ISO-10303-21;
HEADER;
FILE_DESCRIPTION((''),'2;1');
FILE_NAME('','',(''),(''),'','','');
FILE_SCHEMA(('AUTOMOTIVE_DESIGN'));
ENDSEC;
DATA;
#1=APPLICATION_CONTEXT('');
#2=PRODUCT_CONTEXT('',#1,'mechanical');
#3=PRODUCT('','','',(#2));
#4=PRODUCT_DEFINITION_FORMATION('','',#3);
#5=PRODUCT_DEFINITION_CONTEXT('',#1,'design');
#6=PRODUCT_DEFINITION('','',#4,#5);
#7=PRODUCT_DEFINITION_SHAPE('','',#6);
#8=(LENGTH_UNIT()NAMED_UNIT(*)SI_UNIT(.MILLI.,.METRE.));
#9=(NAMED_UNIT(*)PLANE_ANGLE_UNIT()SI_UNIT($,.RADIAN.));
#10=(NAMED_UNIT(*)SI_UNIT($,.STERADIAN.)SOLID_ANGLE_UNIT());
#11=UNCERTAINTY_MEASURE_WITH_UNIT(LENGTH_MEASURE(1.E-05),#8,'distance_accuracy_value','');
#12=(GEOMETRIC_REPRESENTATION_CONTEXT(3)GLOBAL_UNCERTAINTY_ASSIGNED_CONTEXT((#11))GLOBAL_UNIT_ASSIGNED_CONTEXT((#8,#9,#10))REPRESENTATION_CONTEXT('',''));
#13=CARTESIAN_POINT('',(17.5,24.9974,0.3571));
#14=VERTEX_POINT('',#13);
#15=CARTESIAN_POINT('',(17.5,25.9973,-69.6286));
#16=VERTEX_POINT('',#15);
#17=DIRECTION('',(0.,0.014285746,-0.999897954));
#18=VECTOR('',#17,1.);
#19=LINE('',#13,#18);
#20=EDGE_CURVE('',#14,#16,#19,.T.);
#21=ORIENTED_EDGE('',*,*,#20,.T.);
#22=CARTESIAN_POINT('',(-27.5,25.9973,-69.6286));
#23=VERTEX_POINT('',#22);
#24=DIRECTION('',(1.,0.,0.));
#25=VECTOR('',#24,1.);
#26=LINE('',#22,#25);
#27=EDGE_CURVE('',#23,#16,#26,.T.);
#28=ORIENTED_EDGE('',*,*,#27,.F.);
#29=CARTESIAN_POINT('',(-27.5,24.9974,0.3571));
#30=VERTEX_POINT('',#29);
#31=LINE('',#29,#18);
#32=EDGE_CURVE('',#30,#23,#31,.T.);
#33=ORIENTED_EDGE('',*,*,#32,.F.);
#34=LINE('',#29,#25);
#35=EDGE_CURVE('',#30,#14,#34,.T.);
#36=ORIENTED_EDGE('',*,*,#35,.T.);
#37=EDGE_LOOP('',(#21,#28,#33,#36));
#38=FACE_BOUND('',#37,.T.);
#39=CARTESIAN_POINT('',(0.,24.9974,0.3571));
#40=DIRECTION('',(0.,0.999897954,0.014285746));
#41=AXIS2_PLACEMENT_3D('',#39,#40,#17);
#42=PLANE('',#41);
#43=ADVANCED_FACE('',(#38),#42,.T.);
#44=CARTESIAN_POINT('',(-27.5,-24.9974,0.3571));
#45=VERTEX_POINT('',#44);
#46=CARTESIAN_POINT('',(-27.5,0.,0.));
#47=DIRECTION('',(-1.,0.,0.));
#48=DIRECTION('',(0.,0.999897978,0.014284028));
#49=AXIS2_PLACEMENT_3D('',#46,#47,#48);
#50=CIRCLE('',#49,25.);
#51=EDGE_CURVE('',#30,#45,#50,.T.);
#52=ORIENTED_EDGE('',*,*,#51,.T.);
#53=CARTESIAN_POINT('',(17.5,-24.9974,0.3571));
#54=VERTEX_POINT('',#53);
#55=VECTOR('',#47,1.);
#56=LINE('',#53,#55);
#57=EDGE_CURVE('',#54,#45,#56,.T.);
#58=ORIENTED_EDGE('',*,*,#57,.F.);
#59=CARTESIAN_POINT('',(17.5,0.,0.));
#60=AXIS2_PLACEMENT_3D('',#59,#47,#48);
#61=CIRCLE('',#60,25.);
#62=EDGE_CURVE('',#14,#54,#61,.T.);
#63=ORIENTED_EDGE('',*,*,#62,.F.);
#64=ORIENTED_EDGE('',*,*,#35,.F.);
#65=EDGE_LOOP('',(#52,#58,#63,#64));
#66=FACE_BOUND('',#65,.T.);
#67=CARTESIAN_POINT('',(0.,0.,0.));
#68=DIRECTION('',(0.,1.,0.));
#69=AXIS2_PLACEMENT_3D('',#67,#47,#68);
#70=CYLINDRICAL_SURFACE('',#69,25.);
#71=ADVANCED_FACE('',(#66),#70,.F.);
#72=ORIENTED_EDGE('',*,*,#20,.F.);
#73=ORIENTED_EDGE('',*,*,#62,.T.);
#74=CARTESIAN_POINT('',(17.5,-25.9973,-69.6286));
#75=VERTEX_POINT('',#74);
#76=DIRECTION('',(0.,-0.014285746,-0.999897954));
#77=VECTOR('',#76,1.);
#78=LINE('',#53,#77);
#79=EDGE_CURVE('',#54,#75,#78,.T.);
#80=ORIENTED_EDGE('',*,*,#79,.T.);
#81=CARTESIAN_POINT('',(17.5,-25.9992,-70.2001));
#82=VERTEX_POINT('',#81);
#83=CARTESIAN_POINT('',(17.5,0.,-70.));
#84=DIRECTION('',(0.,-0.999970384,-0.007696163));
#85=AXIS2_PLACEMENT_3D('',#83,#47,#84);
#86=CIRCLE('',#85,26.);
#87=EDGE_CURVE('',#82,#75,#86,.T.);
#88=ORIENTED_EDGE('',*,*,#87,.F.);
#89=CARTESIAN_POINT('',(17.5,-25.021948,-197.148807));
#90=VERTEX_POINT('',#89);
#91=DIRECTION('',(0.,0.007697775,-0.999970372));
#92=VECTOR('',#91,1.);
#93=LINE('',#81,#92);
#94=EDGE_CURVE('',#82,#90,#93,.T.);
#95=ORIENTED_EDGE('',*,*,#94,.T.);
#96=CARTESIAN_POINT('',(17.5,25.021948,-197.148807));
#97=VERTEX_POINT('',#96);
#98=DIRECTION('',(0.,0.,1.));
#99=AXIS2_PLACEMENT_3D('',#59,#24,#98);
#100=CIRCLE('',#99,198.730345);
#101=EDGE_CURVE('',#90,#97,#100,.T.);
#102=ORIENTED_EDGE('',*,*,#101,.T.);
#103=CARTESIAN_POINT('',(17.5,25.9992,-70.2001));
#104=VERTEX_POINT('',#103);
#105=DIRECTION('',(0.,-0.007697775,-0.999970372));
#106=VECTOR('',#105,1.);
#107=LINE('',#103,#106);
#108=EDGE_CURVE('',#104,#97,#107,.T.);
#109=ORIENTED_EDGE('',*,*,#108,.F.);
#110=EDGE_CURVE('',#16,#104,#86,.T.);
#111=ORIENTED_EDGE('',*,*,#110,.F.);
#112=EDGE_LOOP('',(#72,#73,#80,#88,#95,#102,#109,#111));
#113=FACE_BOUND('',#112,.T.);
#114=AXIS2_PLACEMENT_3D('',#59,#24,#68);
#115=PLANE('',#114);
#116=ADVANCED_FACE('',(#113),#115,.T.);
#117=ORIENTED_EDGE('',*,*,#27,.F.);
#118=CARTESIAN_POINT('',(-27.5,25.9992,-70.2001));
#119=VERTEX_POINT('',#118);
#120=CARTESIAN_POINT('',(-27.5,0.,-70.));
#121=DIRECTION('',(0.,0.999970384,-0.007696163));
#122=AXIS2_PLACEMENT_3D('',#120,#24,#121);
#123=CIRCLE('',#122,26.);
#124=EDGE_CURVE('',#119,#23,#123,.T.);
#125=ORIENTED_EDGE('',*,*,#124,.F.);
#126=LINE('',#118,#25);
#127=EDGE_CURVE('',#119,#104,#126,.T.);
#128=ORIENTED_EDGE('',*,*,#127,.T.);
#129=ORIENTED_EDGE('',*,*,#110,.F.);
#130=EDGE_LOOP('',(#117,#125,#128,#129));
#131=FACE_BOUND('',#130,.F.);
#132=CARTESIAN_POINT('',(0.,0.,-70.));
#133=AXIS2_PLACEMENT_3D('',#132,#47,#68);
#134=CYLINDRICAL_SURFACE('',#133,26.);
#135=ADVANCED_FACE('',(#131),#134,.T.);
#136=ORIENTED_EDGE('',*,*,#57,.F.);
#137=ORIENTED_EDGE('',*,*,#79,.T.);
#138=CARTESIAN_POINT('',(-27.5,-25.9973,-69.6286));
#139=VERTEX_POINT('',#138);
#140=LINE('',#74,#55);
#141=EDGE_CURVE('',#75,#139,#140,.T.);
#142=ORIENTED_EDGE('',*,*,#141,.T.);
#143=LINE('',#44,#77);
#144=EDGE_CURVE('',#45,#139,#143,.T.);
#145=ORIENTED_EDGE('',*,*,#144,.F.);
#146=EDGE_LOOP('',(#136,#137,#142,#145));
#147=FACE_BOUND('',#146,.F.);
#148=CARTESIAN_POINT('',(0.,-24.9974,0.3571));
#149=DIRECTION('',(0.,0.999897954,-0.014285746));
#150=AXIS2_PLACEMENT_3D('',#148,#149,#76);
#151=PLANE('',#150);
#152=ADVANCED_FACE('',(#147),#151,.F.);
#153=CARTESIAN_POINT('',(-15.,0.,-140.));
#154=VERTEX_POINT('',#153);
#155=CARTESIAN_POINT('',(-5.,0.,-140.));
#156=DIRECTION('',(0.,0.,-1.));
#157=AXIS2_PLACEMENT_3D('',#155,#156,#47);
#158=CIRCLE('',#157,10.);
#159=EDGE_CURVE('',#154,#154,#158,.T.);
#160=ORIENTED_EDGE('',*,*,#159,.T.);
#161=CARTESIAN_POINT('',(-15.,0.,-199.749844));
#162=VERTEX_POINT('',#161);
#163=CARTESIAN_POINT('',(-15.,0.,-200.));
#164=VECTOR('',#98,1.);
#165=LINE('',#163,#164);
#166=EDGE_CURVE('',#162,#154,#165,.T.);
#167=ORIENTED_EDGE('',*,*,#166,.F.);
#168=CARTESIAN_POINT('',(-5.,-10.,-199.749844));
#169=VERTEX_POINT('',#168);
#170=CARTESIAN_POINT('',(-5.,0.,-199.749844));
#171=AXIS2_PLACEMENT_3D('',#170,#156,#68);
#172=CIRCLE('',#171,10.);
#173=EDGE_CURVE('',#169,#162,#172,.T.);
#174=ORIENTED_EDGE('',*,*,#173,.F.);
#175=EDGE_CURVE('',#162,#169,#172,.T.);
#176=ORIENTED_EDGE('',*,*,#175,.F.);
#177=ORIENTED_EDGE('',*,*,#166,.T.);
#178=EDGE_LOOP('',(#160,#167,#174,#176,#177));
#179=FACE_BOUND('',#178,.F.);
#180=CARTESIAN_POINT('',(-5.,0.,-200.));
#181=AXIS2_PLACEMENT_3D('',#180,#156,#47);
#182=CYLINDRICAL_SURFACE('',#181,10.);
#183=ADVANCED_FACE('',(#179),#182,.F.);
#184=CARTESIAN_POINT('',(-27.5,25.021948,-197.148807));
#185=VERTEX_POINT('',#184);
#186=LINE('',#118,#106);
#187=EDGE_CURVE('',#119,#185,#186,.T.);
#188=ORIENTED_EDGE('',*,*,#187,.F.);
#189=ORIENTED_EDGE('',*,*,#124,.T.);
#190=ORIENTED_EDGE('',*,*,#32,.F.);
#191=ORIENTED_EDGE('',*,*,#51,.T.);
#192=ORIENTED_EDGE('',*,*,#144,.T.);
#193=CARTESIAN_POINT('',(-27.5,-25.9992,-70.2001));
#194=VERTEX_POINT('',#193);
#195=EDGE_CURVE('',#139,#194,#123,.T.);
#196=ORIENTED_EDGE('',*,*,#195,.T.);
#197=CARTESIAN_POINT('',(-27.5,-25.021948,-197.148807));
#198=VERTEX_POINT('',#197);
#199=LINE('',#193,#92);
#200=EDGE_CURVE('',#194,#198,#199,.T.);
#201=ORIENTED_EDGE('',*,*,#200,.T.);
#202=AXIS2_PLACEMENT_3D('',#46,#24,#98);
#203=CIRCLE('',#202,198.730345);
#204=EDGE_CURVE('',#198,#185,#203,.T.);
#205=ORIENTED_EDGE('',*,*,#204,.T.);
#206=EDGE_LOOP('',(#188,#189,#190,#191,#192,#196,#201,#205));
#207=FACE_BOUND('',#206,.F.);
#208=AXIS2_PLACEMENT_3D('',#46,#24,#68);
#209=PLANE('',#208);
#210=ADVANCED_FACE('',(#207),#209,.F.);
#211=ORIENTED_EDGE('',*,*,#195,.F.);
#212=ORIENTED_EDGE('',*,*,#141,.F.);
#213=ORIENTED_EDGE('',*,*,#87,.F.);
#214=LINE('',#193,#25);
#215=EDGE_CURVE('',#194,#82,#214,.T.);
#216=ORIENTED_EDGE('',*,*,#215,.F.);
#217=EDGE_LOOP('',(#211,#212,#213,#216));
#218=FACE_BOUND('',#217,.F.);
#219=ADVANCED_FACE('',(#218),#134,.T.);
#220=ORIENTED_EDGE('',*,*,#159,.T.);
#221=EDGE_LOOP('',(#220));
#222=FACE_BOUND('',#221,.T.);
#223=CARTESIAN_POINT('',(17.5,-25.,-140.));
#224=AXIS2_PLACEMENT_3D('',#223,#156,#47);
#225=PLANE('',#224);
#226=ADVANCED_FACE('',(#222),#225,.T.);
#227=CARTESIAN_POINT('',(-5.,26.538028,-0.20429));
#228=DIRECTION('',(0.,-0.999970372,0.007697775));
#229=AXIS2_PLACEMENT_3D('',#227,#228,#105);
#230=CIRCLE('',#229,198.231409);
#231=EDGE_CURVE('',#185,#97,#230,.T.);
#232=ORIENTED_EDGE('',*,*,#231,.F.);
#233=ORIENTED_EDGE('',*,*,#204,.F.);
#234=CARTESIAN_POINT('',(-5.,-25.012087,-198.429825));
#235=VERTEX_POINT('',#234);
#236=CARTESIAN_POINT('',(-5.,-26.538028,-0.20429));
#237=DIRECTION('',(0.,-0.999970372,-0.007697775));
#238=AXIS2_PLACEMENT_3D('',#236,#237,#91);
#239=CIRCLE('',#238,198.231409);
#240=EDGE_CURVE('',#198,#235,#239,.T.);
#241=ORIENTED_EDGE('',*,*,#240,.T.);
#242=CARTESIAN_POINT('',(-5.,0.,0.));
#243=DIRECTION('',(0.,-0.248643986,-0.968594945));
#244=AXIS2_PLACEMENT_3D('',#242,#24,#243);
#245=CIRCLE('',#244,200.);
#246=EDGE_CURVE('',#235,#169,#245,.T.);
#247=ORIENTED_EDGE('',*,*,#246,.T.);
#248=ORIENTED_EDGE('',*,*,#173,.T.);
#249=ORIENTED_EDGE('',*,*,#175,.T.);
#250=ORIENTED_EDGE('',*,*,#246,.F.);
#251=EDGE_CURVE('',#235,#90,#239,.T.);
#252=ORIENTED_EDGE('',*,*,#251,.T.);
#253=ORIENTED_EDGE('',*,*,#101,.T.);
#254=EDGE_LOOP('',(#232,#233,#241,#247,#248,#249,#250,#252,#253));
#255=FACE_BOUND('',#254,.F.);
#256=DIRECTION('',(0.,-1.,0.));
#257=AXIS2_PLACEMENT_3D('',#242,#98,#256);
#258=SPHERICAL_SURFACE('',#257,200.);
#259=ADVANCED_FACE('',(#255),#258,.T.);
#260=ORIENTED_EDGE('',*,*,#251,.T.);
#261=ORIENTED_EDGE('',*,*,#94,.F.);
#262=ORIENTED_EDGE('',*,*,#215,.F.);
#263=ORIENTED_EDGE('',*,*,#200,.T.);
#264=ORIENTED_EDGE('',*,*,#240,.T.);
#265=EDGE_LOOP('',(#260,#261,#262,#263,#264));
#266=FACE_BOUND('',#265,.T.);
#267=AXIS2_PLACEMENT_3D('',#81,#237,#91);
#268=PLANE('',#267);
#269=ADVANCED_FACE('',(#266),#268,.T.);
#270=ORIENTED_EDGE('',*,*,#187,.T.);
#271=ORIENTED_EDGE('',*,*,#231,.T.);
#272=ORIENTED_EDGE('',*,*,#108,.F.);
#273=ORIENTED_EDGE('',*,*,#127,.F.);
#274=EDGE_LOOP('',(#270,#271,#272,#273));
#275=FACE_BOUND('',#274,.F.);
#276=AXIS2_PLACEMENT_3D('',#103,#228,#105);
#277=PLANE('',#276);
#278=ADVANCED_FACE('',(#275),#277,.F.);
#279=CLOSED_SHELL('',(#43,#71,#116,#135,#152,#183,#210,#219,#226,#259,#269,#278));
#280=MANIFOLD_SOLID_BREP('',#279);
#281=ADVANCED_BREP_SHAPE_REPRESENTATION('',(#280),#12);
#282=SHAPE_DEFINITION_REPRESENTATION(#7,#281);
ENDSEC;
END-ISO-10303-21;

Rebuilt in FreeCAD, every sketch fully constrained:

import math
import FreeCAD as App
import Part
import Sketcher

V = App.Vector

doc = App.newDocument("Part")
body = doc.addObject("PartDesign::Body", "Body")

# Sketch on YZ plane
sketch1 = body.newObject("Sketcher::SketchObject", "Sketch")
sketch1.AttachmentSupport = (doc.getObject("YZ_Plane"), [""])
sketch1.MapMode = "FlatFace"
sketch1.addGeometry(Part.Circle(V(0, -70, 0), V(0, 0, 1), 26), False)
sketch1.addConstraint([
    Sketcher.Constraint("PointOnObject", 0, 3, -2),
    Sketcher.Constraint("Diameter", 0, 52.0),
    Sketcher.Constraint("DistanceY", 0, 3, -1, 1, 70.0),
])
pad1 = body.newObject("PartDesign::Pad", "Pad")
pad1.Profile = sketch1
pad1.Type = "TwoLengths"
pad1.Length = 17.5
pad1.Length2 = 27.5

# Sketch on YZ plane
sketch2 = body.newObject("Sketcher::SketchObject", "Sketch001")
sketch2.AttachmentSupport = (doc.getObject("YZ_Plane"), [""])
sketch2.MapMode = "FlatFace"
sketch2.AttachmentOffset = App.Placement(V(0, 0, 17.5), App.Rotation())
sketch2.addGeometry([
    Part.LineSegment(V(25, -200, 0), V(26, -70, 0)),
    Part.ArcOfCircle(Part.Circle(V(0, -70, 0), V(0, 0, 1), 26), math.radians(-180), math.radians(0)),
    Part.LineSegment(V(-26, -70, 0), V(-25, -200, 0)),
    Part.LineSegment(V(-25, -200, 0), V(25, -200, 0)),
], False)
sketch2.addConstraint([
    Sketcher.Constraint("Tangent", 0, 2, 1, 2),
    Sketcher.Constraint("Tangent", 1, 1, 2, 1),
    Sketcher.Constraint("Coincident", 2, 2, 3, 1),
    Sketcher.Constraint("Coincident", 3, 2, 0, 1),
    Sketcher.Constraint("Horizontal", 3),
    Sketcher.Constraint("Symmetric", 0, 2, 1, 1, -2),
    Sketcher.Constraint("Radius", 1, 26.0),
    Sketcher.Constraint("DistanceX", 3, 1, 3, 2, 50.0),
    Sketcher.Constraint("DistanceY", 1, 3, -1, 1, 70.0),
    Sketcher.Constraint("DistanceY", 2, 2, 1, 3, 130.0),
])
pad2 = body.newObject("PartDesign::Pad", "Pad001")
pad2.Profile = sketch2
pad2.Length = 45
pad2.Reversed = True

# Sketch on XY plane
sketch3 = body.newObject("Sketcher::SketchObject", "Sketch002")
sketch3.AttachmentSupport = (doc.getObject("XY_Plane"), [""])
sketch3.MapMode = "FlatFace"
sketch3.AttachmentOffset = App.Placement(V(0, 0, -200), App.Rotation())
sketch3.addGeometry(Part.Circle(V(-5, 0, 0), V(0, 0, 1), 10), False)
sketch3.addConstraint([
    Sketcher.Constraint("PointOnObject", 0, 3, -1),
    Sketcher.Constraint("Diameter", 0, 20.0),
    Sketcher.Constraint("DistanceX", 0, 3, -1, 1, 5.0),
])
pocket1 = body.newObject("PartDesign::Pocket", "Pocket")
pocket1.Profile = sketch3
pocket1.Length = 60
pocket1.Reversed = True

# Sketch on YZ plane
sketch4 = body.newObject("Sketcher::SketchObject", "Sketch003")
sketch4.AttachmentSupport = (doc.getObject("YZ_Plane"), [""])
sketch4.MapMode = "FlatFace"
sketch4.AttachmentOffset = App.Placement(V(0, 0, -5), App.Rotation())
sketch4.addGeometry([
    Part.LineSegment(V(-49.679, -200.19, 0), V(-49.7288, -193.719, 0)),
    Part.ArcOfCircle(Part.Circle(V(0, 0, 0), V(0, 0, 1), 200), math.radians(-104.397285), math.radians(-90)),
    Part.LineSegment(V(0, -200, 0), V(-25, -200, 0)),
    Part.LineSegment(V(-25, -200, 0), V(-49.679, -200.19, 0)),
], False)
sketch4.addConstraint([
    Sketcher.Constraint("Coincident", 0, 2, 1, 1),
    Sketcher.Constraint("Coincident", 1, 2, 2, 1),
    Sketcher.Constraint("Coincident", 2, 2, 3, 1),
    Sketcher.Constraint("Coincident", 3, 2, 0, 1),
    Sketcher.Constraint("Horizontal", 2),
    Sketcher.Constraint("Coincident", 1, 3, -1, 1),
    Sketcher.Constraint("PointOnObject", 1, 2, -2),
    Sketcher.Constraint("Radius", 1, 200.0),
    Sketcher.Constraint("DistanceX", 2, 2, 2, 1, 25.0),
    Sketcher.Constraint("DistanceY", 3, 2, -1, 1, 200.19),
    Sketcher.Constraint("DistanceY", 0, 2, -1, 1, 193.719),
    Sketcher.Constraint("DistanceX", 3, 2, -1, 1, 49.679),
])
groove = body.newObject("PartDesign::Groove", "Groove")
groove.Profile = sketch4
groove.ReferenceAxis = (sketch4, ["V_Axis"])
groove.Angle = 360

# Sketch on YZ plane
sketch5 = body.newObject("Sketcher::SketchObject", "Sketch004")
sketch5.AttachmentSupport = (doc.getObject("YZ_Plane"), [""])
sketch5.MapMode = "FlatFace"
sketch5.addGeometry([
    Part.ArcOfCircle(Part.Circle(V(0, -70, 0), V(0, 0, 1), 26), math.radians(1), math.radians(179)),
    Part.LineSegment(V(26, -70, 0), V(25, 0, 0)),
    Part.ArcOfCircle(Part.Circle(V(0, 0, 0), V(0, 0, 1), 25), math.radians(179), math.radians(361)),
    Part.LineSegment(V(-25, 0, 0), V(-26, -70, 0)),
], False)
sketch5.addConstraint([
    Sketcher.Constraint("Tangent", 0, 1, 1, 1),
    Sketcher.Constraint("Tangent", 1, 2, 2, 2),
    Sketcher.Constraint("Tangent", 2, 1, 3, 1),
    Sketcher.Constraint("Tangent", 3, 2, 0, 2),
    Sketcher.Constraint("Coincident", 2, 3, -1, 1),
    Sketcher.Constraint("PointOnObject", 0, 3, -2),
    Sketcher.Constraint("Radius", 0, 26.0),
    Sketcher.Constraint("Radius", 2, 25.0),
    Sketcher.Constraint("DistanceY", 0, 3, -1, 1, 70.0),
])
pad3 = body.newObject("PartDesign::Pad", "Pad002")
pad3.Profile = sketch5
pad3.Type = "TwoLengths"
pad3.Length = 17.5
pad3.Length2 = 27.5

doc.recompute()
